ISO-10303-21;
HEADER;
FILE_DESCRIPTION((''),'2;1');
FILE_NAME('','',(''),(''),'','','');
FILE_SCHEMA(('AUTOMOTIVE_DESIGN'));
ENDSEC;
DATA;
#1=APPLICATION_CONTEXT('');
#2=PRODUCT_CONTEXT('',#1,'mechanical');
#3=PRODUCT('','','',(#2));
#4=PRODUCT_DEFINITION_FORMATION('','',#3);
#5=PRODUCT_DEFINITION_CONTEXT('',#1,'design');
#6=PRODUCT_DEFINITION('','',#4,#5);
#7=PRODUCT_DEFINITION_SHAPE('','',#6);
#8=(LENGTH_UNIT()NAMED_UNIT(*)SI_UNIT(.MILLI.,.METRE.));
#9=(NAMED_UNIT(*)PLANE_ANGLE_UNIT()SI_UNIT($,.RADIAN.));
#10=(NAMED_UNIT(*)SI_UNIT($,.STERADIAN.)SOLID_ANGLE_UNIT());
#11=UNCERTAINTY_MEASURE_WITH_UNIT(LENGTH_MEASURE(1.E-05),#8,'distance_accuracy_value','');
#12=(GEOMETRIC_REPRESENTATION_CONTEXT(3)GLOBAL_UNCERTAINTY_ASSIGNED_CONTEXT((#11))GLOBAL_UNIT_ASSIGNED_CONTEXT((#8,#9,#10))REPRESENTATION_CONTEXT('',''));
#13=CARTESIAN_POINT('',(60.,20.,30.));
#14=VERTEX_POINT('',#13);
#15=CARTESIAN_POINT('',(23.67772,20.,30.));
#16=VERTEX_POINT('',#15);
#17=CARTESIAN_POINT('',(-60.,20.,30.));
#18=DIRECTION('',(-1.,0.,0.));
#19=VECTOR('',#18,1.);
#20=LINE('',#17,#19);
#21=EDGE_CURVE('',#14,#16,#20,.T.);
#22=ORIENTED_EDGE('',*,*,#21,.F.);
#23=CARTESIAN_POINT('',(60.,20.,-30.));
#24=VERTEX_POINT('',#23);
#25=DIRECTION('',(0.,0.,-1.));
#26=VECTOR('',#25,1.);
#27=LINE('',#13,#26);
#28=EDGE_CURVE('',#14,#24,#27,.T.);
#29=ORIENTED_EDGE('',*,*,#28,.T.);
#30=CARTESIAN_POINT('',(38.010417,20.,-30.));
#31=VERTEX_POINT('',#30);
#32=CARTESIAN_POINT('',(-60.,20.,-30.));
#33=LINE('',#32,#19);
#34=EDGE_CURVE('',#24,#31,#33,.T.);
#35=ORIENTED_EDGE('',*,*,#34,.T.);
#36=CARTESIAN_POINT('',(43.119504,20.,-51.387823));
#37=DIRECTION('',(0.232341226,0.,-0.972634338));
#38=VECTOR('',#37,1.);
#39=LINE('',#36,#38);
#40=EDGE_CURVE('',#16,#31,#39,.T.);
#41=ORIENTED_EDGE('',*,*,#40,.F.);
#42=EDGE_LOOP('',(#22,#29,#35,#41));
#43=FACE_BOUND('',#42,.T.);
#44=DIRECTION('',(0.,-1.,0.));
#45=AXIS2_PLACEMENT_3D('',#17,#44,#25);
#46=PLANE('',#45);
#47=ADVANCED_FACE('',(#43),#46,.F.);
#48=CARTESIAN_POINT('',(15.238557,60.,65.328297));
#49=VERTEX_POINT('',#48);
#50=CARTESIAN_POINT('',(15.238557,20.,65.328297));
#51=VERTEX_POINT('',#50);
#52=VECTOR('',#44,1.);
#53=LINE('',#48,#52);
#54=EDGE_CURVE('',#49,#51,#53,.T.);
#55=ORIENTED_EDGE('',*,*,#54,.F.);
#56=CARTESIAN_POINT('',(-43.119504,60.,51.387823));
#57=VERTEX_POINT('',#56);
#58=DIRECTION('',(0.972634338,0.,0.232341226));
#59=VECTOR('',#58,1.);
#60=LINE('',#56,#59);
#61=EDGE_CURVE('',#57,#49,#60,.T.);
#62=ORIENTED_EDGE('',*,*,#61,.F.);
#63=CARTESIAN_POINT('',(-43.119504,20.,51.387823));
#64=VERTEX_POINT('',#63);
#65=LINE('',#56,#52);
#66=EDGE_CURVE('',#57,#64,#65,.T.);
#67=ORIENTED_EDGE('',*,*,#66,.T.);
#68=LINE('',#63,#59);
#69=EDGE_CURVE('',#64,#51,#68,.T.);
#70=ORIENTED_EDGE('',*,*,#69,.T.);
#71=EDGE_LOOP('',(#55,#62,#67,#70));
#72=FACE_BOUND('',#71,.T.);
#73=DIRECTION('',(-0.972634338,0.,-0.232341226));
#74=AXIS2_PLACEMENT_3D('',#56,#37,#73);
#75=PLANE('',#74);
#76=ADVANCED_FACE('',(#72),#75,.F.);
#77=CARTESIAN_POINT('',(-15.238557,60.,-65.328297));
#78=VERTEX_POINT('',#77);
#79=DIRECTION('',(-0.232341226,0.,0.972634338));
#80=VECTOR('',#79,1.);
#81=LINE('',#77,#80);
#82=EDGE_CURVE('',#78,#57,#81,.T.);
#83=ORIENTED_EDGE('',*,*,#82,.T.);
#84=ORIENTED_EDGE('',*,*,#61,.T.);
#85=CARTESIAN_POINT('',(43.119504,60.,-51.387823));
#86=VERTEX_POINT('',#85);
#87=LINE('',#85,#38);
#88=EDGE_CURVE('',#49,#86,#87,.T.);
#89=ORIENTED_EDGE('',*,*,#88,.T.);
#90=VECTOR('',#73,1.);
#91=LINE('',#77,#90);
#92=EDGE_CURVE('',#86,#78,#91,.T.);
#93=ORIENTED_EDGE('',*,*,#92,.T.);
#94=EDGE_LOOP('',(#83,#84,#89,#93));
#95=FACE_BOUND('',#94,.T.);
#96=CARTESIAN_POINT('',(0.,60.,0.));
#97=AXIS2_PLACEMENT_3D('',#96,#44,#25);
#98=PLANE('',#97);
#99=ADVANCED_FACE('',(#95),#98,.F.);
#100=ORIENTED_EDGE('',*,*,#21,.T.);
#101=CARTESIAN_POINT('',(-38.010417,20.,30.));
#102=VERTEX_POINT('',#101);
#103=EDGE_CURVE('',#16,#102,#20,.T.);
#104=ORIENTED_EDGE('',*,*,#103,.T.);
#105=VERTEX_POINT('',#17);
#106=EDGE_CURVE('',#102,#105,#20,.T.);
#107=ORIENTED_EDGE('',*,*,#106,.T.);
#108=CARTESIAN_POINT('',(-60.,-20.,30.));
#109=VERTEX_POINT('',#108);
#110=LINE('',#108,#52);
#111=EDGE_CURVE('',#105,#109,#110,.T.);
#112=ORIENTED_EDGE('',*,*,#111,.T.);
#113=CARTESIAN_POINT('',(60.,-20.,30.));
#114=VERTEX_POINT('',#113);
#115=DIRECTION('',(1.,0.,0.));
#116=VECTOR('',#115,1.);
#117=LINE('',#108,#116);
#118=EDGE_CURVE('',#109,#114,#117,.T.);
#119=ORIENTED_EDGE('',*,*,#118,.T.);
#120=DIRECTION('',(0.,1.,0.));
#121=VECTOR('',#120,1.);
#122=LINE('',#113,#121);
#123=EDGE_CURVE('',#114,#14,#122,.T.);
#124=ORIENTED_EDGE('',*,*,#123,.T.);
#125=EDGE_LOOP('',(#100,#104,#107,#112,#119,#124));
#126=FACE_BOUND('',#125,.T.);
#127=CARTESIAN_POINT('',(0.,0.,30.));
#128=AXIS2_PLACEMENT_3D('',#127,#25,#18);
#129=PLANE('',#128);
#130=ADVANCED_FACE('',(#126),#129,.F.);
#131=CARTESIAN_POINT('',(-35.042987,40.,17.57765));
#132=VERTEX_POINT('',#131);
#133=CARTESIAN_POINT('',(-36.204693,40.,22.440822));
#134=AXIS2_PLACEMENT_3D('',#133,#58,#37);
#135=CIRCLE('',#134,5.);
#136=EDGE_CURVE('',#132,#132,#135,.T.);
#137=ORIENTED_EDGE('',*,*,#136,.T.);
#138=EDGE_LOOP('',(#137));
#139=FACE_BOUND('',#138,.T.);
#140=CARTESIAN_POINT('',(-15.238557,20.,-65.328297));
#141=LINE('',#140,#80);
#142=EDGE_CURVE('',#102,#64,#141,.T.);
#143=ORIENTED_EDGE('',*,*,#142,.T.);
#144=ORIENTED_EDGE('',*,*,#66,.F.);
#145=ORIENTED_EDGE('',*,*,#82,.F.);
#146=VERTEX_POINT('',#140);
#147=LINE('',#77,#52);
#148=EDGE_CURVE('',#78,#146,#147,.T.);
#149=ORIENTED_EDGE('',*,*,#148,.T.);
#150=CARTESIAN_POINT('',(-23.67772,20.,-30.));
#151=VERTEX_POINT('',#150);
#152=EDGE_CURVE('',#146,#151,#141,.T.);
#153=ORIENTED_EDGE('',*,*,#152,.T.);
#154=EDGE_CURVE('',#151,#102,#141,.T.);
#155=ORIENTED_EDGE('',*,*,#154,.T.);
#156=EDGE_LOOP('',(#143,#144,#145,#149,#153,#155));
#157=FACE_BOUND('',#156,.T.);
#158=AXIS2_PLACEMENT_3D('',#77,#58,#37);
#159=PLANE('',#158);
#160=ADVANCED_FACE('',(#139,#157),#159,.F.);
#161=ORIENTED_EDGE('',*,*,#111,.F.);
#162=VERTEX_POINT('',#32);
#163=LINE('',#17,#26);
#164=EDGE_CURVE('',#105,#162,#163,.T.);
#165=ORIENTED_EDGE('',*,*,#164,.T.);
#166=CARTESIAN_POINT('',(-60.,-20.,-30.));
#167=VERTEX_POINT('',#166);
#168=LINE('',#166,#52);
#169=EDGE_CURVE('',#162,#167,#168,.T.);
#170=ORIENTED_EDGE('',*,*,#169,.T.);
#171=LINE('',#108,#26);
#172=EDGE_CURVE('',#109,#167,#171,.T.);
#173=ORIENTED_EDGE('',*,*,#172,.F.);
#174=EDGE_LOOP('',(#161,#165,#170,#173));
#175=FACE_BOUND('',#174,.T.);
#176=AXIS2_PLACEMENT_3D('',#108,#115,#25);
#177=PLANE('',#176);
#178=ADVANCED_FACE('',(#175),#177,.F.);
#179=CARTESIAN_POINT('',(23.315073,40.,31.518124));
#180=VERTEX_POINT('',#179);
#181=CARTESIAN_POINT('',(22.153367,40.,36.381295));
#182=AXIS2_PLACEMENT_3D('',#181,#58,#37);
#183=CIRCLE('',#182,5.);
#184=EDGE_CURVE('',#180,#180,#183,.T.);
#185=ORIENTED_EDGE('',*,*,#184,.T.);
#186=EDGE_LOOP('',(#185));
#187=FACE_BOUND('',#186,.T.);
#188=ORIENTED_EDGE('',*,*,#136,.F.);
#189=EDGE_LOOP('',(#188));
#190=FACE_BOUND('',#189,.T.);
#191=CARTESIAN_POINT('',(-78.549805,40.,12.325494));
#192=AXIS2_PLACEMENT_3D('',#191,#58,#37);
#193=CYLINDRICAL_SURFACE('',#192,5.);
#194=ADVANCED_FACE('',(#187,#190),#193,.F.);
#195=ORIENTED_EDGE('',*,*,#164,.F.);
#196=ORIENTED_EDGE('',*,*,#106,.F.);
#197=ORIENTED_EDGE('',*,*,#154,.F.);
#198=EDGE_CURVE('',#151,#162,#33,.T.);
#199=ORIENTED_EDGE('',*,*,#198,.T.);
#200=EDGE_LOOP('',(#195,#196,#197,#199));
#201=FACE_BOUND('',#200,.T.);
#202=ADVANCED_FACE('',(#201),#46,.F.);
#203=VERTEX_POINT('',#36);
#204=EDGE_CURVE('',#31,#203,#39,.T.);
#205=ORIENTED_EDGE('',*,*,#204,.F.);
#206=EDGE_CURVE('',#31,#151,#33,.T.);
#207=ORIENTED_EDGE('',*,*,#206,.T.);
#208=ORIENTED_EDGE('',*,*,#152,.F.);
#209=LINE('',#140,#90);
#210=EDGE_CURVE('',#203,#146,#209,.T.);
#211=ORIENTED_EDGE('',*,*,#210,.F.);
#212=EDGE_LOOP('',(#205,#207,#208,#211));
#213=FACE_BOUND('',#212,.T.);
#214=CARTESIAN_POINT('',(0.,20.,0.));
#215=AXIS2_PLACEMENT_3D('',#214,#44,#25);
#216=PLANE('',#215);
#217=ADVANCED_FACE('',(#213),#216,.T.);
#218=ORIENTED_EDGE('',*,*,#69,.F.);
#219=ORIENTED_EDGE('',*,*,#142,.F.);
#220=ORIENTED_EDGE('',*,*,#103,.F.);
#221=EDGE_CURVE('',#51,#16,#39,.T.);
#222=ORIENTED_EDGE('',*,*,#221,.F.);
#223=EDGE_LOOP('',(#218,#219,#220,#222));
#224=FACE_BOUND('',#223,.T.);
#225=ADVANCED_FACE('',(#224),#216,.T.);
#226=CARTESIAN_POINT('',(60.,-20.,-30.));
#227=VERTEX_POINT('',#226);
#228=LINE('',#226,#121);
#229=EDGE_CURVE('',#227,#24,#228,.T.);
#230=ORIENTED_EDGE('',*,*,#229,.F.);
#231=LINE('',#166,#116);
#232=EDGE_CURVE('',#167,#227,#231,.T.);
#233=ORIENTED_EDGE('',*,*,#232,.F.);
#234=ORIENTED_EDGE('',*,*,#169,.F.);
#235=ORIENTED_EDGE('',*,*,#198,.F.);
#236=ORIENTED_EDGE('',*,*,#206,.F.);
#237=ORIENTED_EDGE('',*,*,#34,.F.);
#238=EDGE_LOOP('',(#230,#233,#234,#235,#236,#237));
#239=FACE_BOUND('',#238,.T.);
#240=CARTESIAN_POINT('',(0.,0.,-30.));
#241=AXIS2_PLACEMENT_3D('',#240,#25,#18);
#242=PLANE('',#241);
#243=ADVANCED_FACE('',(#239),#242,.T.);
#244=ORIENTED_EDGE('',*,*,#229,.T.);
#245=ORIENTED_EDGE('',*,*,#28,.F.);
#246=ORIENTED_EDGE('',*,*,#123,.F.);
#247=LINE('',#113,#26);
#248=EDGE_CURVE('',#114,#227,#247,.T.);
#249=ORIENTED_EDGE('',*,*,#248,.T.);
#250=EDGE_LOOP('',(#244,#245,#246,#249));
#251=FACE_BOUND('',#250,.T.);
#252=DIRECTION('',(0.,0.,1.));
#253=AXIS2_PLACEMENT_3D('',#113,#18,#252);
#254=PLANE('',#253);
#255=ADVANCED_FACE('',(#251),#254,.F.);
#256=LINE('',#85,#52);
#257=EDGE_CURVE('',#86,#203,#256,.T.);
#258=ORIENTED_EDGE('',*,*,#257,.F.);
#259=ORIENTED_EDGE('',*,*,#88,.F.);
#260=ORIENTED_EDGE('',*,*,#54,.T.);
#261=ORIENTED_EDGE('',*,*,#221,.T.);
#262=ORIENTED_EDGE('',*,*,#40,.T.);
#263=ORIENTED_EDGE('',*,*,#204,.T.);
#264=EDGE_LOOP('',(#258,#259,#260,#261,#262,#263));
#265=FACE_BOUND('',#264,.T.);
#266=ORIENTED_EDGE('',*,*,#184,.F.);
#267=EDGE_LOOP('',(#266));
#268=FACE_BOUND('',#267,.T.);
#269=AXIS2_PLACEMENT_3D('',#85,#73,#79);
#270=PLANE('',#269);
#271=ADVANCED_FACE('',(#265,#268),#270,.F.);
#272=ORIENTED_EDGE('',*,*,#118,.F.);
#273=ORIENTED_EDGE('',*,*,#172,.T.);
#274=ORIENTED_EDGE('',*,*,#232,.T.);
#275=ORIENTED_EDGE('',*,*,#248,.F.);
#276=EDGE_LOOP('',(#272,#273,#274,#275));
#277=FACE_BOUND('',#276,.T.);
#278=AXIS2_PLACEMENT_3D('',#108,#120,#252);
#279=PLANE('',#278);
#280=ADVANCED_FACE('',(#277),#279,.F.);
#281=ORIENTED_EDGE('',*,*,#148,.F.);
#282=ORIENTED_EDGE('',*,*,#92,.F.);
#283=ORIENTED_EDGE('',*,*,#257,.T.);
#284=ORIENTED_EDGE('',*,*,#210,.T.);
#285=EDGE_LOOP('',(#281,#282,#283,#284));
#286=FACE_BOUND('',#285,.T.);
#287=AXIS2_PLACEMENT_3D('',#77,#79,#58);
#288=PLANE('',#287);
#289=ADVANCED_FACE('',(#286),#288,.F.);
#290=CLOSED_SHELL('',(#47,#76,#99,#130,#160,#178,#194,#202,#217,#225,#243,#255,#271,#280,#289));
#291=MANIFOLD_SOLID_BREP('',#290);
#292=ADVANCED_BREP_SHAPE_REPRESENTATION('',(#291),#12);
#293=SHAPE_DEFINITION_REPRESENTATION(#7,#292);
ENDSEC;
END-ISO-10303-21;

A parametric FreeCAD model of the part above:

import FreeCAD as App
import Part
import Sketcher

V = App.Vector

doc = App.newDocument("Part")
params = doc.addObject("Spreadsheet::Sheet", "Params")
for row, (alias, value) in enumerate([
    ("sketch1_width", "120 mm"),
    ("sketch1_height", "40 mm"),
    ("pad1_length", "60 mm"),
    ("sketch2_length", "120 mm"),
    ("sketch2_length2", "60 mm"),
    ("pad2_length", "40 mm"),
    ("sketch3_diameter", "10 mm"),
], start=1):
    params.set(f"A{row}", alias)
    params.set(f"B{row}", "=" + value)
    params.setAlias(f"B{row}", alias)

body = doc.addObject("PartDesign::Body", "Body")

# Sketch on XY plane
sketch1 = doc.addObject("Sketcher::SketchObject", "Sketch")
body.addObject(sketch1)
sketch1.AttachmentSupport = (doc.XY_Plane, [""])
sketch1.MapMode = "FlatFace"
sketch1.addGeometry([
    Part.LineSegment(V(-60, 20, 0), V(-60, -20, 0)),
    Part.LineSegment(V(-60, -20, 0), V(60, -20, 0)),
    Part.LineSegment(V(60, -20, 0), V(60, 20, 0)),
    Part.LineSegment(V(60, 20, 0), V(-60, 20, 0)),
], False)
sketch1.addConstraint([
    Sketcher.Constraint("Coincident", 0, 2, 1, 1),
    Sketcher.Constraint("Coincident", 1, 2, 2, 1),
    Sketcher.Constraint("Coincident", 2, 2, 3, 1),
    Sketcher.Constraint("Coincident", 3, 2, 0, 1),
    Sketcher.Constraint("Vertical", 0),
    Sketcher.Constraint("Horizontal", 1),
    Sketcher.Constraint("Vertical", 2),
    Sketcher.Constraint("Horizontal", 3),
    Sketcher.Constraint("Symmetric", 0, 2, 2, 2, -1, 1),
    Sketcher.Constraint("DistanceX", 1, 1, 1, 2, 120.0),
    Sketcher.Constraint("DistanceY", 0, 2, 0, 1, 40.0),
])
sketch1.setExpression("Constraints[9]", "Params.sketch1_width")
sketch1.setExpression("Constraints[10]", "Params.sketch1_height")
pad1 = doc.addObject("PartDesign::Pad", "Pad")
body.addObject(pad1)
pad1.Profile = sketch1
pad1.setExpression("Length", "Params.pad1_length")
pad1.Midplane = True

# Sketch on XZ plane
sketch2 = doc.addObject("Sketcher::SketchObject", "Sketch001")
body.addObject(sketch2)
sketch2.AttachmentSupport = (doc.XZ_Plane, [""])
sketch2.MapMode = "FlatFace"
sketch2.AttachmentOffset = App.Placement(V(0, 0, -20), App.Rotation())
sketch2.addGeometry([
    Part.LineSegment(V(-15, -65, 0), V(-43, 51, 0)),
    Part.LineSegment(V(-43, 51, 0), V(15, 65, 0)),
    Part.LineSegment(V(15, 65, 0), V(43, -51, 0)),
    Part.LineSegment(V(43, -51, 0), V(-15, -65, 0)),
], False)
sketch2.addConstraint([
    Sketcher.Constraint("Coincident", 0, 2, 1, 1),
    Sketcher.Constraint("Coincident", 1, 2, 2, 1),
    Sketcher.Constraint("Coincident", 2, 2, 3, 1),
    Sketcher.Constraint("Coincident", 3, 2, 0, 1),
    Sketcher.Constraint("Symmetric", 0, 2, 2, 2, -1, 1),
    Sketcher.Constraint("Symmetric", 1, 2, 3, 2, -1, 1),
    Sketcher.Constraint("Perpendicular", 0, 1),
    Sketcher.Constraint("Distance", 0, 120.0),
    Sketcher.Constraint("Distance", 1, 60.0),
    Sketcher.Constraint("DistanceX", 0, 2, 1, 2, 58.35806),
])
sketch2.setExpression("Constraints[7]", "Params.sketch2_length")
sketch2.setExpression("Constraints[8]", "Params.sketch2_length2")
pad2 = doc.addObject("PartDesign::Pad", "Pad001")
body.addObject(pad2)
pad2.Profile = sketch2
pad2.setExpression("Length", "Params.pad2_length")
pad2.Reversed = True

# Sketch on an angled plane
sketch3 = doc.addObject("Sketcher::SketchObject", "Sketch002")
body.addObject(sketch3)
sketch3.Placement = App.Placement(V(29.17903, 50, 6.970237), App.Rotation(V(0.053982445, -0.972634338, -0.225983055), V(0.225983055, 0.232341227, -0.946017555), V(0.972634338, 0, 0.232341226), "ZXY"))
sketch3.addGeometry(Part.Circle(V(3, -32, 0), V(0, 0, 1), 5), False)
sketch3.addConstraint([
    Sketcher.Constraint("Diameter", 0, 10.0),
    Sketcher.Constraint("DistanceX", -1, 1, 0, 3, 2.70068),
    Sketcher.Constraint("DistanceY", 0, 3, -1, 1, 31.734471),
])
sketch3.setExpression("Constraints[0]", "Params.sketch3_diameter")
pocket1 = doc.addObject("PartDesign::Pocket", "Pocket")
body.addObject(pocket1)
pocket1.Profile = sketch3
pocket1.Type = "ThroughAll"

doc.recompute()
